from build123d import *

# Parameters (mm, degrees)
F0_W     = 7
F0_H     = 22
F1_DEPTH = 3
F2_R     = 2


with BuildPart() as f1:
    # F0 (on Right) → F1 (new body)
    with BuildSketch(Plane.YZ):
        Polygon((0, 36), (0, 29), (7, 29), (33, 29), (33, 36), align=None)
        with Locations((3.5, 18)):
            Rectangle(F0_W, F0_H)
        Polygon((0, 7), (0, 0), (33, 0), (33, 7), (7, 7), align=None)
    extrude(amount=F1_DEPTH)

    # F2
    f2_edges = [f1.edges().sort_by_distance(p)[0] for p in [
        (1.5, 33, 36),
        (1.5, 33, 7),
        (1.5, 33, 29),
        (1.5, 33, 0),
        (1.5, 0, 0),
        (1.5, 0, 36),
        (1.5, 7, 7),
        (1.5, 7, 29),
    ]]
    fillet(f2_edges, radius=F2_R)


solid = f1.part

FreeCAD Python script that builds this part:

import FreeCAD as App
import Part
import Sketcher
from FreeCAD import Vector
Q = App.Units.Quantity


def edges_at(feature, points):
    """Names of the edges that pass closest to the given points."""
    edges = feature.Shape.Edges
    near = lambda p: min(range(len(edges)), key=lambda i: edges[i].distToShape(Part.Vertex(*p))[0])
    return sorted({f"Edge{near(p) + 1}" for p in points})


def add_polygon(sketch, points):
    """Adds a closed chain of lines whose ends are joined by coincident constraints."""
    first, n = sketch.GeometryCount, len(points)
    for a, b in zip(points, points[1:] + points[:1]):
        sketch.addGeometry(Part.LineSegment(App.Vector(*a, 0), App.Vector(*b, 0)), False)
    for i in range(n):
        sketch.addConstraint(Sketcher.Constraint("Coincident", first + i, 2, first + (i + 1) % n, 1))

doc = App.newDocument("Part")
body = doc.addObject("PartDesign::Body", "Body")

# Sketch on YZ plane
sketch1 = body.newObject("Sketcher::SketchObject", "Sketch")
sketch1.AttachmentSupport = (doc.getObject("YZ_Plane"), [""])
sketch1.MapMode = "FlatFace"
add_polygon(sketch1, [(0, 36), (0, 0), (33, 0), (33, 7), (7, 7), (7, 29), (33, 29), (33, 36)])  # lines 0-7
sketch1.addConstraint([
    Sketcher.Constraint("Vertical", 0),
    Sketcher.Constraint("Horizontal", 1),
    Sketcher.Constraint("Vertical", 2),
    Sketcher.Constraint("Horizontal", 3),
    Sketcher.Constraint("Vertical", 4),
    Sketcher.Constraint("Horizontal", 5),
    Sketcher.Constraint("Vertical", 6),
    Sketcher.Constraint("Horizontal", 7),
    Sketcher.Constraint("Coincident", 0, 2, -1, 1),
    Sketcher.Constraint("Vertical", 2, 2, 5, 2),
    Sketcher.Constraint("Equal", 2, 6),
    Sketcher.Constraint("DistanceX", 1, 1, 1, 2, Q("33 mm")),
    Sketcher.Constraint("DistanceX", 3, 2, 3, 1, Q("26 mm")),
    Sketcher.Constraint("DistanceY", 0, 2, 0, 1, Q("36 mm")),
    Sketcher.Constraint("DistanceY", 2, 1, 2, 2, Q("7 mm")),
])
pad1 = body.newObject("PartDesign::Pad", "Pad")
pad1.Profile = sketch1
pad1.Length = 3
doc.recompute()

fillet = body.newObject("PartDesign::Fillet", "Fillet")
fillet.Base = (pad1, edges_at(pad1, [
    (1.5, 33, 36),
    (1.5, 33, 7),
    (1.5, 33, 29),
    (1.5, 33, 0),
    (1.5, 0, 0),
    (1.5, 0, 36),
    (1.5, 7, 7),
    (1.5, 7, 29),
]))
fillet.Radius = 2

doc.recompute()
